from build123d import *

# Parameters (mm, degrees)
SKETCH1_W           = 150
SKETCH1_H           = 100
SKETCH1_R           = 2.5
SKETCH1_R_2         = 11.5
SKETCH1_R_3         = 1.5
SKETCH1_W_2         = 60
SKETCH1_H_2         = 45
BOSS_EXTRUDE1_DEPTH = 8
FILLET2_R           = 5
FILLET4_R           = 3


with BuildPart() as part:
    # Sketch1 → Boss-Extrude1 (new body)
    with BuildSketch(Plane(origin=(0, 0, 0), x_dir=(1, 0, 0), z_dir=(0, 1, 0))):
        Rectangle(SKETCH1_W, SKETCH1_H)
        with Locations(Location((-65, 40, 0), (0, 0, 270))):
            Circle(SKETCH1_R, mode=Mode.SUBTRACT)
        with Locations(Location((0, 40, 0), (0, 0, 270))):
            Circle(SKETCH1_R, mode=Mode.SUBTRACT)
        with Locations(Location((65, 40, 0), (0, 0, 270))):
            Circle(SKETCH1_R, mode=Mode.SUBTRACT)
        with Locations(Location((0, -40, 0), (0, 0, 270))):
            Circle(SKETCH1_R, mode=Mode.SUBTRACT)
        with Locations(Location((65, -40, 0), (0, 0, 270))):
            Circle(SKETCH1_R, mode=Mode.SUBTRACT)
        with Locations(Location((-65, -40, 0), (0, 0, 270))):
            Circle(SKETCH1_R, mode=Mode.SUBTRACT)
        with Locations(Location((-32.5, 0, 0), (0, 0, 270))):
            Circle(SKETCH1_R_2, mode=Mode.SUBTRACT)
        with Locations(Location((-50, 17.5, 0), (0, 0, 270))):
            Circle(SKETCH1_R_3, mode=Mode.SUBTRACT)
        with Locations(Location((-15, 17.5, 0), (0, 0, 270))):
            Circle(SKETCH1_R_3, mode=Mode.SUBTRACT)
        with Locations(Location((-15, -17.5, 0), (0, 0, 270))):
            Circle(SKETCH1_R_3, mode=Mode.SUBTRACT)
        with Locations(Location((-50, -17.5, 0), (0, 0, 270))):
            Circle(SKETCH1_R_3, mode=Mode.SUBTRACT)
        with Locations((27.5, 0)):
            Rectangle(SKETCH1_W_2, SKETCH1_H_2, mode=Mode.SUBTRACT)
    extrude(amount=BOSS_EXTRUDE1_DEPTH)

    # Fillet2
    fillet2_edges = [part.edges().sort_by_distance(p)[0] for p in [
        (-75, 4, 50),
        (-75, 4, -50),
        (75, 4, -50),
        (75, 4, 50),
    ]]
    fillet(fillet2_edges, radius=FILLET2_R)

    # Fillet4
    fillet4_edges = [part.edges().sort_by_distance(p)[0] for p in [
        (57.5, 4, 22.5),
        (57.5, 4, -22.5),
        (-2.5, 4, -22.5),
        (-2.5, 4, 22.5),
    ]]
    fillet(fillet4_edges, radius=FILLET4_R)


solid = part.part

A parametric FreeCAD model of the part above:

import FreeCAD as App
import Part
import Sketcher

V = App.Vector


def edges_at(feature, points):
    """Names of the edges that pass closest to the given points."""
    edges = feature.Shape.Edges
    near = lambda p: min(range(len(edges)), key=lambda i: edges[i].distToShape(Part.Vertex(*p))[0])
    return sorted({f"Edge{near(p) + 1}" for p in points})


def add_polygon(sketch, points):
    """Adds a closed chain of lines whose ends are joined by coincident constraints."""
    first, n = sketch.GeometryCount, len(points)
    for a, b in zip(points, points[1:] + points[:1]):
        sketch.addGeometry(Part.LineSegment(App.Vector(*a, 0), App.Vector(*b, 0)), False)
    for i in range(n):
        sketch.addConstraint(Sketcher.Constraint("Coincident", first + i, 2, first + (i + 1) % n, 1))

doc = App.newDocument("Part")
body = doc.addObject("PartDesign::Body", "Body")

# Sketch on XZ plane
sketch1 = body.newObject("Sketcher::SketchObject", "Sketch")
sketch1.AttachmentSupport = (doc.getObject("XZ_Plane"), [""])
sketch1.MapMode = "FlatFace"
add_polygon(sketch1, [(-75, -50), (-75, 50), (75, 50), (75, -50)])  # lines 0-3
sketch1.addGeometry(Part.Circle(V(-65, 40, 0), V(0, 0, 1), 2.5), False)  # 4
sketch1.addGeometry(Part.Circle(V(-50, 17.5, 0), V(0, 0, 1), 1.5), False)  # 5
sketch1.addGeometry(Part.Circle(V(-15, 17.5, 0), V(0, 0, 1), 1.5), False)  # 6
sketch1.addGeometry(Part.Circle(V(0, 40, 0), V(0, 0, 1), 2.5), False)  # 7
sketch1.addGeometry(Part.Circle(V(65, 40, 0), V(0, 0, 1), 2.5), False)  # 8
sketch1.addGeometry(Part.Circle(V(-50, -17.5, 0), V(0, 0, 1), 1.5), False)  # 9
sketch1.addGeometry(Part.Circle(V(-32.5, 0, 0), V(0, 0, 1), 11.5), False)  # 10
sketch1.addGeometry(Part.Circle(V(-15, -17.5, 0), V(0, 0, 1), 1.5), False)  # 11
sketch1.addGeometry(Part.Circle(V(-65, -40, 0), V(0, 0, 1), 2.5), False)  # 12
add_polygon(sketch1, [(57.5, 22.5), (-2.5, 22.5), (-2.5, -22.5), (57.5, -22.5)])  # lines 13-16
sketch1.addGeometry(Part.Circle(V(0, -40, 0), V(0, 0, 1), 2.5), False)  # 17
sketch1.addGeometry(Part.Circle(V(65, -40, 0), V(0, 0, 1), 2.5), False)  # 18
sketch1.addConstraint([
    Sketcher.Constraint("Vertical", 0),
    Sketcher.Constraint("Horizontal", 1),
    Sketcher.Constraint("Vertical", 2),
    Sketcher.Constraint("Horizontal", 3),
    Sketcher.Constraint("Horizontal", 13),
    Sketcher.Constraint("Vertical", 14),
    Sketcher.Constraint("Horizontal", 15),
    Sketcher.Constraint("Vertical", 16),
    Sketcher.Constraint("Equal", 5, 6),
    Sketcher.Constraint("Equal", 4, 7),
    Sketcher.Constraint("Equal", 7, 8),
    Sketcher.Constraint("Equal", 6, 9),
    Sketcher.Constraint("Equal", 9, 11),
    Sketcher.Constraint("Equal", 8, 12),
    Sketcher.Constraint("Equal", 12, 17),
    Sketcher.Constraint("Equal", 17, 18),
    Sketcher.Constraint("Symmetric", 8, 3, 12, 3, -1, 1),
    Sketcher.Constraint("Symmetric", 7, 3, 17, 3, -1, 1),
    Sketcher.Constraint("Symmetric", 4, 3, 18, 3, -1, 1),
    Sketcher.Constraint("Symmetric", 0, 2, 2, 2, -1, 1),
    Sketcher.Constraint("Symmetric", 4, 3, 8, 3, -2),
    Sketcher.Constraint("Symmetric", 5, 3, 9, 3, -1),
    Sketcher.Constraint("Symmetric", 6, 3, 11, 3, -1),
    Sketcher.Constraint("PointOnObject", 7, 3, -2),
    Sketcher.Constraint("PointOnObject", 10, 3, -1),
    Sketcher.Constraint("Horizontal", 5, 3, 6, 3),
    Sketcher.Constraint("Horizontal", 4, 3, 7, 3),
    Sketcher.Constraint("Diameter", 4, 5.0),
    Sketcher.Constraint("Diameter", 5, 3.0),
    Sketcher.Constraint("Diameter", 10, 23.0),
    Sketcher.Constraint("DistanceX", 1, 1, 1, 2, 150.0),
    Sketcher.Constraint("DistanceX", 13, 2, 13, 1, 60.0),
    Sketcher.Constraint("DistanceY", 0, 1, 0, 2, 100.0),
    Sketcher.Constraint("DistanceY", 14, 2, 14, 1, 45.0),
    Sketcher.Constraint("DistanceX", 4, 3, -1, 1, 65.0),
    Sketcher.Constraint("DistanceY", -1, 1, 4, 3, 40.0),
    Sketcher.Constraint("DistanceX", 5, 3, -1, 1, 50.0),
    Sketcher.Constraint("DistanceX", 6, 3, -1, 1, 15.0),
    Sketcher.Constraint("DistanceY", 9, 3, 5, 3, 35.0),
    Sketcher.Constraint("DistanceY", 6, 3, 13, 2, 5.0),
    Sketcher.Constraint("DistanceX", 10, 3, 13, 2, 30.0),
    Sketcher.Constraint("DistanceX", 10, 3, -1, 1, 32.5),
])
pad1 = body.newObject("PartDesign::Pad", "Pad")
pad1.Profile = sketch1
pad1.Length = 8
pad1.Reversed = True
doc.recompute()

fillet = body.newObject("PartDesign::Fillet", "Fillet")
fillet.Base = (pad1, edges_at(pad1, [
    (-75, 4, 50),
    (-75, 4, -50),
    (75, 4, -50),
    (75, 4, 50),
]))
fillet.Radius = 5
doc.recompute()

fillet2 = body.newObject("PartDesign::Fillet", "Fillet001")
fillet2.Base = (fillet, edges_at(fillet, [
    (57.5, 4, 22.5),
    (57.5, 4, -22.5),
    (-2.5, 4, -22.5),
    (-2.5, 4, 22.5),
]))
fillet2.Radius = 3

doc.recompute()
